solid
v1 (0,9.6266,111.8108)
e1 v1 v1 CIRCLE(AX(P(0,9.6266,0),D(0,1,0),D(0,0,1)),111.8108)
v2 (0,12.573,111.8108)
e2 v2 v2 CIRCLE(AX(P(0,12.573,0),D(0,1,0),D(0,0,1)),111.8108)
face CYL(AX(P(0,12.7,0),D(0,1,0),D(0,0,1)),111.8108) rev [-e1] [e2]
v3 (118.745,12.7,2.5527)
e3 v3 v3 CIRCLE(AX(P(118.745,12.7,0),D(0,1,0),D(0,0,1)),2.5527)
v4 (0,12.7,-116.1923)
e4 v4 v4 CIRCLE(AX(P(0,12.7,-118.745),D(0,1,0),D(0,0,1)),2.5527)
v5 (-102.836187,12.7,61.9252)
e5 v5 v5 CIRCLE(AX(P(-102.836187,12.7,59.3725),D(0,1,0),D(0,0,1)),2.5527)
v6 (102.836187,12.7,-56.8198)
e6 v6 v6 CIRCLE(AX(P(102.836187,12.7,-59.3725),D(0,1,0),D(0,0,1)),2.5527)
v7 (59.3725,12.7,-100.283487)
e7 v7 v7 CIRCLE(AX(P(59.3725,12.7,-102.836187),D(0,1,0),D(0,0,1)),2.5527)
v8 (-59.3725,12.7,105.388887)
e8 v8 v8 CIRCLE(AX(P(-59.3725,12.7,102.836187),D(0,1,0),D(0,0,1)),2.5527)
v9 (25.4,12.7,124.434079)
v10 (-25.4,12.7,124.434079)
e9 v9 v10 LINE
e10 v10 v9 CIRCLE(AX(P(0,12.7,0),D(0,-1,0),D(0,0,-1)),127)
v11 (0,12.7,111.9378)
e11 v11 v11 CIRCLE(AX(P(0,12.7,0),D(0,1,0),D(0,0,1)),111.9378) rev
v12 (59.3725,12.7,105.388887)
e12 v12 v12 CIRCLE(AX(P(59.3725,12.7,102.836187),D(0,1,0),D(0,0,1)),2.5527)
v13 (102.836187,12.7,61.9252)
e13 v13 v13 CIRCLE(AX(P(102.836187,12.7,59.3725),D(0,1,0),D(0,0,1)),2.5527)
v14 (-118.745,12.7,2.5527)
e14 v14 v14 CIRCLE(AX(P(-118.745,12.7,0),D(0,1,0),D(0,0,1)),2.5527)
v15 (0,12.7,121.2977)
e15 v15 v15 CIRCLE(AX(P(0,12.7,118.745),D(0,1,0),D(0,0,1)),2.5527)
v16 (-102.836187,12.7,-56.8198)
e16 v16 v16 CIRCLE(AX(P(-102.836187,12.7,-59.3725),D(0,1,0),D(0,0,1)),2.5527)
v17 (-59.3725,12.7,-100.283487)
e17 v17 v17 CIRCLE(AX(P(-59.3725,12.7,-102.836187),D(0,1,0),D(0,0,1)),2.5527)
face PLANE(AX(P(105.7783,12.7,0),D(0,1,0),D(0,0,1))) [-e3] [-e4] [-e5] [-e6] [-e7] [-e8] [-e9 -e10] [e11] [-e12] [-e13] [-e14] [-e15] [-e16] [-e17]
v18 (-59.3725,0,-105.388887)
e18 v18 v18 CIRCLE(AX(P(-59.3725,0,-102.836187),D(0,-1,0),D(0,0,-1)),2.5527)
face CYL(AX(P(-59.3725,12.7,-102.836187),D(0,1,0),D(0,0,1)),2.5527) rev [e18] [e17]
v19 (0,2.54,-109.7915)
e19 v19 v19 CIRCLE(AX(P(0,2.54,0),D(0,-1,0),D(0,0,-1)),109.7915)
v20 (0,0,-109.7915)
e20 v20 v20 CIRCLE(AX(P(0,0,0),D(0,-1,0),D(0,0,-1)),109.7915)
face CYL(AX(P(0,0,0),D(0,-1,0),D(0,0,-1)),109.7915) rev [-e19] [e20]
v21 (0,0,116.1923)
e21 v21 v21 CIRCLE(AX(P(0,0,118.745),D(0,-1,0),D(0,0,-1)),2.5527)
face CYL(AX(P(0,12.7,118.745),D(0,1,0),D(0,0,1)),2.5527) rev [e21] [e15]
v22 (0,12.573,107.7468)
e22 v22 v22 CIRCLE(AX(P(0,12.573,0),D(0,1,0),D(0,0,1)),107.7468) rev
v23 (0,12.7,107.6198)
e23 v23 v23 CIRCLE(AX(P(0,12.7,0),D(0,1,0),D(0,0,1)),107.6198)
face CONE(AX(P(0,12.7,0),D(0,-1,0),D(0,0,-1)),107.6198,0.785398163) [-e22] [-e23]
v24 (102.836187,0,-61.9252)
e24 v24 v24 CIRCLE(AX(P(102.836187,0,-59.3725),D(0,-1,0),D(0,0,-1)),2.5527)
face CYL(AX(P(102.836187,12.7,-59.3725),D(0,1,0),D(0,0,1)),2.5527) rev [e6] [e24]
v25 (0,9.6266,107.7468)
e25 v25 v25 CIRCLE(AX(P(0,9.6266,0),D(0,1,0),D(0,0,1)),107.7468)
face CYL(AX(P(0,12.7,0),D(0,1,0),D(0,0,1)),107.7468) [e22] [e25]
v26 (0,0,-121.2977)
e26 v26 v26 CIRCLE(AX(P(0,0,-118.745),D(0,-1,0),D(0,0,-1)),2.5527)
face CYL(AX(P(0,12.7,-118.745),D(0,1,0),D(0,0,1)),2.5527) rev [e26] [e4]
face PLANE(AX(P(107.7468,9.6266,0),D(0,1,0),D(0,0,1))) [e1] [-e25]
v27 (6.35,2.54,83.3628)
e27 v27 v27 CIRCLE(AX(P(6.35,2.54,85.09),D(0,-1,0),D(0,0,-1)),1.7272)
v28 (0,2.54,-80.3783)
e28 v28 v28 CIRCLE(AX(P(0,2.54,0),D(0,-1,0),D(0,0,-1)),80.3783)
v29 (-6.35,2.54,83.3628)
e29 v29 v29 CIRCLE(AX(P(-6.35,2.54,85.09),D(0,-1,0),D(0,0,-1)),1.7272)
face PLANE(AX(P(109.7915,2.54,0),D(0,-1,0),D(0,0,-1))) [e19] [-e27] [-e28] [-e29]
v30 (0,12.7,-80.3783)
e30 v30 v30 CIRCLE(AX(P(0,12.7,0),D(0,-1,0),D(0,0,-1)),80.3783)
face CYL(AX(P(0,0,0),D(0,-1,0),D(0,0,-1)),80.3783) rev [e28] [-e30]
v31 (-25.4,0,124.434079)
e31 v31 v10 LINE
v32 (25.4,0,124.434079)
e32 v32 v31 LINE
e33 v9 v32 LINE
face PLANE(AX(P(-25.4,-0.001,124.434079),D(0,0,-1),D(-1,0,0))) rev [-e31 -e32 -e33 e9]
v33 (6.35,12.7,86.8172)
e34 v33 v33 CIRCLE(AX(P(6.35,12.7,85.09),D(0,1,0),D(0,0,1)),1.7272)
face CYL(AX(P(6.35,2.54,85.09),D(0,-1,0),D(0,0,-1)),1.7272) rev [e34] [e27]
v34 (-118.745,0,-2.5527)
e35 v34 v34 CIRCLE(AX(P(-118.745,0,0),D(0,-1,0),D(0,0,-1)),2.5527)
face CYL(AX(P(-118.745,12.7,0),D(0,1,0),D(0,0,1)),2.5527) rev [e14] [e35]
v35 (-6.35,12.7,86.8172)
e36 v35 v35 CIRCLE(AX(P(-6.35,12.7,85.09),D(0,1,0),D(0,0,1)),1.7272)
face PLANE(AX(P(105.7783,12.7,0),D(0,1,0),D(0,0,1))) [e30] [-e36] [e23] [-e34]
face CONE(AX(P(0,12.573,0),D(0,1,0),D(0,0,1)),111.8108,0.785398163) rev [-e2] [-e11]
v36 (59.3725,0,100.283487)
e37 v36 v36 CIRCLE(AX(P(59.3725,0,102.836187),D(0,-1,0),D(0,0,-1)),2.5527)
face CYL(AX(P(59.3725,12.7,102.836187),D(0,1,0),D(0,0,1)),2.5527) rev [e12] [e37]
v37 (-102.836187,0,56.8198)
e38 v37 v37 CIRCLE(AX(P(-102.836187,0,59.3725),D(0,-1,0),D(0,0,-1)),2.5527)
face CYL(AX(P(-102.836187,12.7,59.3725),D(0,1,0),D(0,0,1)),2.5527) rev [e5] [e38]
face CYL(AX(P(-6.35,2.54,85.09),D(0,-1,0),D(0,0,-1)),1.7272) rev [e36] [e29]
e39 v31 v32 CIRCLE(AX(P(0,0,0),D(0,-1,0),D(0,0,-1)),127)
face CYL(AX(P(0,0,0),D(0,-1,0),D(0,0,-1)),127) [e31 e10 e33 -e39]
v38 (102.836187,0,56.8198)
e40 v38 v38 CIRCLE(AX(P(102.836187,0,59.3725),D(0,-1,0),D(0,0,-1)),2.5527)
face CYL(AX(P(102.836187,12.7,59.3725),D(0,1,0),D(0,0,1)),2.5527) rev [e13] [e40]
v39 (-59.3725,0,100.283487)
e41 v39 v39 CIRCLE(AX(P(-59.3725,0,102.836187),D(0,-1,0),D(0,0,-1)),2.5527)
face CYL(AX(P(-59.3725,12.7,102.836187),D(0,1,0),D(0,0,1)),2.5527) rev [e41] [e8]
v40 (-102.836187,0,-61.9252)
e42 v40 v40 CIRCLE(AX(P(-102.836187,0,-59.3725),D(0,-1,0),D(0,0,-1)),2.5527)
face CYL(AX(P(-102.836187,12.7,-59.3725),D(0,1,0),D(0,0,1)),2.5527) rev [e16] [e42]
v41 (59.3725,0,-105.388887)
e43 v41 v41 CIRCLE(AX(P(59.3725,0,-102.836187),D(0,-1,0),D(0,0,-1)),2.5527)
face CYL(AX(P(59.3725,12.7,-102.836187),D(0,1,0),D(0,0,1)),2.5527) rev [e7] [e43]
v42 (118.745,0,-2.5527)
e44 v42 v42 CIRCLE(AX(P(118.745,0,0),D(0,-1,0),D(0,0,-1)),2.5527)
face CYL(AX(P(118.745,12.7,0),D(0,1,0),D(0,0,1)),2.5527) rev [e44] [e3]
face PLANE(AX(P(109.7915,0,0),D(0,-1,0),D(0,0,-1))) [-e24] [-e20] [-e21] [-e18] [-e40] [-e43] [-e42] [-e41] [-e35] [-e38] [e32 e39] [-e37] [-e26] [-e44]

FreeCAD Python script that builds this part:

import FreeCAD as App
import Part
import Sketcher

V = App.Vector
Q = App.Units.Quantity


def edges_at(feature, points):
    """Names of the edges that pass closest to the given points."""
    edges = feature.Shape.Edges
    near = lambda p: min(range(len(edges)), key=lambda i: edges[i].distToShape(Part.Vertex(*p))[0])
    return sorted({f"Edge{near(p) + 1}" for p in points})


def add_polygon(sketch, points):
    """Adds a closed chain of lines whose ends are joined by coincident constraints."""
    first, n = sketch.GeometryCount, len(points)
    for a, b in zip(points, points[1:] + points[:1]):
        sketch.addGeometry(Part.LineSegment(App.Vector(*a, 0), App.Vector(*b, 0)), False)
    for i in range(n):
        sketch.addConstraint(Sketcher.Constraint("Coincident", first + i, 2, first + (i + 1) % n, 1))

doc = App.newDocument("Part")
body = doc.addObject("PartDesign::Body", "Body")

sketch1 = body.newObject("Sketcher::SketchObject", "Sketch")
sketch1.AttachmentSupport = (doc.getObject("XY_Plane"), [""])
sketch1.MapMode = "FlatFace"
add_polygon(sketch1, [(109.8, 2.5), (109.8, 0), (127, 0), (127, 12.7), (80.4, 12.7), (80.4, 2.5)])
sketch1.addConstraint(Sketcher.Constraint("Vertical", 0))
sketch1.addConstraint(Sketcher.Constraint("Horizontal", 1))
sketch1.addConstraint(Sketcher.Constraint("Vertical", 2))
sketch1.addConstraint(Sketcher.Constraint("Horizontal", 3))
sketch1.addConstraint(Sketcher.Constraint("Vertical", 4))
sketch1.addConstraint(Sketcher.Constraint("Horizontal", 5))
sketch1.addConstraint(Sketcher.Constraint("PointOnObject", 0, 2, -1))
sketch1.addConstraint(Sketcher.Constraint("DistanceY", 0, 2, 0, 1, Q("0.1 in")))
sketch1.addConstraint(Sketcher.Constraint("DistanceY", 2, 1, 2, 2, Q("0.5 in")))
sketch1.addConstraint(Sketcher.Constraint("DistanceX", -1, 1, 1, 2, Q("5 in")))
sketch1.addConstraint(Sketcher.Constraint("DistanceX", 5, 1, 5, 2, Q("1.158 in")))
sketch1.addConstraint(Sketcher.Constraint("DistanceX", 1, 1, 1, 2, Q("0.6775 in")))
revolution = body.newObject("PartDesign::Revolution", "Revolution")
revolution.Profile = sketch1
revolution.ReferenceAxis = (sketch1, ["V_Axis"])
revolution.Angle = 360

sketch2 = body.newObject("Sketcher::SketchObject", "Sketch001")
sketch2.AttachmentSupport = (doc.getObject("XZ_Plane"), [""])
sketch2.MapMode = "FlatFace"
sketch2.AttachmentOffset = App.Placement(V(0, 0, -0.5 * 25.4), App.Rotation())
sketch2.addGeometry(Part.Circle(V(0, -118.7, 0), V(0, 0, 1), 2.6), False)
sketch2.addGeometry(Part.Circle(V(59.4, -102.8, 0), V(0, 0, 1), 2.6), False)
sketch2.addGeometry(Part.Circle(V(102.8, -59.4, 0), V(0, 0, 1), 2.6), False)
sketch2.addGeometry(Part.Circle(V(118.7, 0, 0), V(0, 0, 1), 2.6), False)
sketch2.addGeometry(Part.Circle(V(102.8, 59.4, 0), V(0, 0, 1), 2.6), False)
sketch2.addGeometry(Part.Circle(V(59.4, 102.8, 0), V(0, 0, 1), 2.6), False)
sketch2.addGeometry(Part.Circle(V(0, 118.7, 0), V(0, 0, 1), 2.6), False)
sketch2.addGeometry(Part.Circle(V(-59.4, 102.8, 0), V(0, 0, 1), 2.6), False)
sketch2.addGeometry(Part.Circle(V(-102.8, 59.4, 0), V(0, 0, 1), 2.6), False)
sketch2.addGeometry(Part.Circle(V(-118.7, 0, 0), V(0, 0, 1), 2.6), False)
sketch2.addGeometry(Part.Circle(V(-102.8, -59.4, 0), V(0, 0, 1), 2.6), False)
sketch2.addGeometry(Part.Circle(V(-59.4, -102.8, 0), V(0, 0, 1), 2.6), False)
sketch2.addConstraint(Sketcher.Constraint("Equal", 0, 1))
sketch2.addConstraint(Sketcher.Constraint("Equal", 1, 2))
sketch2.addConstraint(Sketcher.Constraint("Equal", 2, 3))
sketch2.addConstraint(Sketcher.Constraint("Equal", 3, 4))
sketch2.addConstraint(Sketcher.Constraint("Equal", 4, 5))
sketch2.addConstraint(Sketcher.Constraint("Equal", 5, 6))
sketch2.addConstraint(Sketcher.Constraint("Equal", 6, 7))
sketch2.addConstraint(Sketcher.Constraint("Equal", 7, 8))
sketch2.addConstraint(Sketcher.Constraint("Equal", 8, 9))
sketch2.addConstraint(Sketcher.Constraint("Equal", 9, 10))
sketch2.addConstraint(Sketcher.Constraint("Equal", 10, 11))
sketch2.addConstraint(Sketcher.Constraint("Symmetric", 0, 3, 6, 3, -1, 1))
sketch2.addConstraint(Sketcher.Constraint("Symmetric", 1, 3, 7, 3, -1, 1))
sketch2.addConstraint(Sketcher.Constraint("Symmetric", 2, 3, 8, 3, -1, 1))
sketch2.addConstraint(Sketcher.Constraint("Symmetric", 3, 3, 9, 3, -1, 1))
sketch2.addConstraint(Sketcher.Constraint("Symmetric", 4, 3, 10, 3, -1, 1))
sketch2.addConstraint(Sketcher.Constraint("Symmetric", 5, 3, 11, 3, -1, 1))
sketch2.addConstraint(Sketcher.Constraint("Symmetric", 5, 3, 7, 3, -2))
sketch2.addConstraint(Sketcher.Constraint("Symmetric", 4, 3, 8, 3, -2))
sketch2.addConstraint(Sketcher.Constraint("PointOnObject", 0, 3, -2))
sketch2.addConstraint(Sketcher.Constraint("PointOnObject", 3, 3, -1))
sketch2.addConstraint(Sketcher.Constraint("Diameter", 0, Q("0.201 in")))
sketch2.addConstraint(Sketcher.Constraint("DistanceY", 0, 3, -1, 1, Q("4.675 in")))
sketch2.addConstraint(Sketcher.Constraint("DistanceX", -1, 1, 3, 3, Q("4.675 in")))
sketch2.addConstraint(Sketcher.Constraint("DistanceY", 2, 3, 4, 3, Q("4.675 in")))
sketch2.addConstraint(Sketcher.Constraint("DistanceX", 7, 3, 5, 3, Q("4.675 in")))
sketch2.addConstraint(Sketcher.Constraint("DistanceY", 1, 3, -1, 1, Q("102.836187 mm")))
sketch2.addConstraint(Sketcher.Constraint("DistanceX", -1, 1, 2, 3, Q("102.836187 mm")))
doc.recompute()
hole = body.newObject("PartDesign::Hole", "Hole")
hole.Profile = sketch2
hole.ThreadType = "None"
hole.Diameter = Q("0.201 in")
hole.DepthType = "ThroughAll"
hole.Reversed = True

sketch3 = body.newObject("Sketcher::SketchObject", "Sketch002")
sketch3.AttachmentSupport = (doc.getObject("XY_Plane"), [""])
sketch3.MapMode = "FlatFace"
add_polygon(sketch3, [(107.7, 12.7), (107.7, 9.6), (111.8, 9.6), (111.8, 12.7)])
sketch3.addConstraint(Sketcher.Constraint("Vertical", 0))
sketch3.addConstraint(Sketcher.Constraint("Horizontal", 1))
sketch3.addConstraint(Sketcher.Constraint("Vertical", 2))
sketch3.addConstraint(Sketcher.Constraint("Horizontal", 3))
sketch3.addConstraint(Sketcher.Constraint("DistanceX", 1, 1, 1, 2, Q("0.16 in")))
sketch3.addConstraint(Sketcher.Constraint("DistanceY", -1, 1, 2, 2, Q("0.5 in")))
sketch3.addConstraint(Sketcher.Constraint("DistanceY", 0, 2, 0, 1, Q("0.121 in")))
sketch3.addConstraint(Sketcher.Constraint("DistanceX", -1, 1, 0, 2, Q("4.242 in")))
groove = body.newObject("PartDesign::Groove", "Groove")
groove.Profile = sketch3
groove.ReferenceAxis = (sketch3, ["V_Axis"])
groove.Angle = 360
doc.recompute()

chamfer = body.newObject("PartDesign::Chamfer", "Chamfer")
chamfer.Base = (groove, edges_at(groove, [(0, 12.7, -107.747), (0, 12.7, -111.811)]))
chamfer.Size = Q("0.005 in")

sketch4 = body.newObject("Sketcher::SketchObject", "Sketch003")
sketch4.AttachmentSupport = (doc.getObject("XZ_Plane"), [""])
sketch4.MapMode = "FlatFace"
sketch4.AttachmentOffset = App.Placement(V(0, 0, -0.1 * 25.4), App.Rotation())
sketch4.addGeometry(Part.Circle(V(-6.3, 85.1, 0), V(0, 0, 1), 1.7), False)
sketch4.addGeometry(Part.Circle(V(6.3, 85.1, 0), V(0, 0, 1), 1.7), False)
sketch4.addConstraint(Sketcher.Constraint("Equal", 0, 1))
sketch4.addConstraint(Sketcher.Constraint("Symmetric", 0, 3, 1, 3, -2))
sketch4.addConstraint(Sketcher.Constraint("Diameter", 0, Q("0.136 in")))
sketch4.addConstraint(Sketcher.Constraint("DistanceX", 0, 3, 1, 3, Q("0.5 in")))
sketch4.addConstraint(Sketcher.Constraint("DistanceY", -1, 1, 0, 3, Q("3.35 in")))
doc.recompute()
hole2 = body.newObject("PartDesign::Hole", "Hole001")
hole2.Profile = sketch4
hole2.ThreadType = "None"
hole2.Diameter = Q("0.136 in")
hole2.DepthType = "ThroughAll"

sketch5 = body.newObject("Sketcher::SketchObject", "Sketch004")
sketch5.AttachmentSupport = (doc.getObject("XZ_Plane"), [""])
sketch5.MapMode = "FlatFace"
sketch5.AttachmentOffset = App.Placement(V(0, 0, -0.5 * 25.4), App.Rotation())
add_polygon(sketch5, [(-25.4, 124.4), (-25.4, 127), (25.4, 127), (25.4, 124.4)])
sketch5.addConstraint(Sketcher.Constraint("Vertical", 0))
sketch5.addConstraint(Sketcher.Constraint("Horizontal", 1))
sketch5.addConstraint(Sketcher.Constraint("Vertical", 2))
sketch5.addConstraint(Sketcher.Constraint("Horizontal", 3))
sketch5.addConstraint(Sketcher.Constraint("DistanceX", 1, 1, 1, 2, Q("2 in")))
sketch5.addConstraint(Sketcher.Constraint("DistanceX", 0, 2, -1, 1, Q("1 in")))
sketch5.addConstraint(Sketcher.Constraint("DistanceY", -1, 1, 0, 2, Q("5 in")))
sketch5.addConstraint(Sketcher.Constraint("DistanceY", 0, 1, 0, 2, Q("2.565921 mm")))
pocket1 = body.newObject("PartDesign::Pocket", "Pocket")
pocket1.Profile = sketch5
pocket1.Type = "UpToFirst"
pocket1.Reversed = True

doc.recompute()
